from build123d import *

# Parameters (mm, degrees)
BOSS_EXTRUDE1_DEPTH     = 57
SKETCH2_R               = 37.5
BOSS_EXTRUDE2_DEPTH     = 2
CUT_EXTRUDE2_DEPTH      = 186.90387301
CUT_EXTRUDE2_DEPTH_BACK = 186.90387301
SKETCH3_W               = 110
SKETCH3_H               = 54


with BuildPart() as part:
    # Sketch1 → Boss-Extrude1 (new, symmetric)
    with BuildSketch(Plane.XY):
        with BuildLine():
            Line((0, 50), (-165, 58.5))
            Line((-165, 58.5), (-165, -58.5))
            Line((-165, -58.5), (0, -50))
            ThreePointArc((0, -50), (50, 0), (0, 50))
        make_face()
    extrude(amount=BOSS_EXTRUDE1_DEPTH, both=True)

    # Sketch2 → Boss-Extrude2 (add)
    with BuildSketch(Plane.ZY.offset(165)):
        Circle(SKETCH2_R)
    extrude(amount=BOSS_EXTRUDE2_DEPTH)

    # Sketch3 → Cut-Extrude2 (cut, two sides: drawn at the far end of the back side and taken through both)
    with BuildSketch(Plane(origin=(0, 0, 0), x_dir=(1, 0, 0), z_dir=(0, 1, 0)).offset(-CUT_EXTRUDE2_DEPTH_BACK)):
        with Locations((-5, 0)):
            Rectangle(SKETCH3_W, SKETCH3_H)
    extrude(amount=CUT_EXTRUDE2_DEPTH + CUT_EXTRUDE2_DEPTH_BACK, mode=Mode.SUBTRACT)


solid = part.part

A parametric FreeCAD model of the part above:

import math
import FreeCAD as App
import Part
import Sketcher

doc = App.newDocument("Part")
body = doc.addObject("PartDesign::Body", "Body")

sketch1 = body.newObject("Sketcher::SketchObject", "Sketch")
sketch1.AttachmentSupport = (doc.getObject("XY_Plane"), [""])
sketch1.MapMode = "FlatFace"
sketch1.addGeometry(Part.LineSegment(App.Vector(0, 50, 0), App.Vector(-165, 58.5, 0)), False)
sketch1.addGeometry(Part.LineSegment(App.Vector(-165, 58.5, 0), App.Vector(-165, -58.5, 0)), False)
sketch1.addGeometry(Part.LineSegment(App.Vector(-165, -58.5, 0), App.Vector(0, -50, 0)), False)
sketch1.addGeometry(Part.ArcOfCircle(Part.Circle(App.Vector(0, 0, 0), App.Vector(0, 0, 1), 50), math.radians(-90), math.radians(90)), False)
sketch1.addConstraint(Sketcher.Constraint("Coincident", 0, 2, 1, 1))
sketch1.addConstraint(Sketcher.Constraint("Coincident", 1, 2, 2, 1))
sketch1.addConstraint(Sketcher.Constraint("Coincident", 2, 2, 3, 1))
sketch1.addConstraint(Sketcher.Constraint("Coincident", 3, 2, 0, 1))
sketch1.addConstraint(Sketcher.Constraint("Vertical", 1))
sketch1.addConstraint(Sketcher.Constraint("Coincident", 3, 3, -1, 1))
sketch1.addConstraint(Sketcher.Constraint("PointOnObject", 2, 2, -2))
sketch1.addConstraint(Sketcher.Constraint("PointOnObject", 3, 2, -2))
sketch1.addConstraint(Sketcher.Constraint("Equal", 0, 2))
sketch1.addConstraint(Sketcher.Constraint("Radius", 3, 50.0))
sketch1.addConstraint(Sketcher.Constraint("DistanceY", 1, 2, 1, 1, 117.0))
sketch1.addConstraint(Sketcher.Constraint("DistanceX", 0, 2, -1, 1, 165.0))
pad1 = body.newObject("PartDesign::Pad", "Pad")
pad1.Profile = sketch1
pad1.Length = 114
pad1.Midplane = True

sketch2 = body.newObject("Sketcher::SketchObject", "Sketch001")
sketch2.AttachmentSupport = (doc.getObject("YZ_Plane"), [""])
sketch2.MapMode = "FlatFace"
sketch2.AttachmentOffset = App.Placement(App.Vector(0, 0, -165), App.Rotation())
sketch2.addGeometry(Part.Circle(App.Vector(0, 0, 0), App.Vector(0, 0, 1), 37.5), False)
sketch2.addConstraint(Sketcher.Constraint("Coincident", 0, 3, -1, 1))
sketch2.addConstraint(Sketcher.Constraint("Diameter", 0, 75.0))
pad2 = body.newObject("PartDesign::Pad", "Pad001")
pad2.Profile = sketch2
pad2.Length = 2
pad2.Reversed = True

sketch3 = body.newObject("Sketcher::SketchObject", "Sketch002")
sketch3.AttachmentSupport = (doc.getObject("XZ_Plane"), [""])
sketch3.MapMode = "FlatFace"
sketch3.addGeometry(Part.LineSegment(App.Vector(-60, -27, 0), App.Vector(-60, 27, 0)), False)
sketch3.addGeometry(Part.LineSegment(App.Vector(-60, 27, 0), App.Vector(50, 27, 0)), False)
sketch3.addGeometry(Part.LineSegment(App.Vector(50, 27, 0), App.Vector(50, -27, 0)), False)
sketch3.addGeometry(Part.LineSegment(App.Vector(50, -27, 0), App.Vector(-60, -27, 0)), False)
sketch3.addConstraint(Sketcher.Constraint("Coincident", 0, 2, 1, 1))
sketch3.addConstraint(Sketcher.Constraint("Coincident", 1, 2, 2, 1))
sketch3.addConstraint(Sketcher.Constraint("Coincident", 2, 2, 3, 1))
sketch3.addConstraint(Sketcher.Constraint("Coincident", 3, 2, 0, 1))
sketch3.addConstraint(Sketcher.Constraint("Vertical", 0))
sketch3.addConstraint(Sketcher.Constraint("Horizontal", 1))
sketch3.addConstraint(Sketcher.Constraint("Vertical", 2))
sketch3.addConstraint(Sketcher.Constraint("Horizontal", 3))
sketch3.addConstraint(Sketcher.Constraint("DistanceX", 1, 1, 1, 2, 110.0))
sketch3.addConstraint(Sketcher.Constraint("DistanceY", 0, 1, 0, 2, 54.0))
sketch3.addConstraint(Sketcher.Constraint("DistanceX", 0, 2, -1, 1, 60.0))
sketch3.addConstraint(Sketcher.Constraint("DistanceY", -1, 1, 0, 2, 27.0))
pocket1 = body.newObject("PartDesign::Pocket", "Pocket")
pocket1.Profile = sketch3
pocket1.Type = "ThroughAll"
pocket1.Midplane = True

doc.recompute()
